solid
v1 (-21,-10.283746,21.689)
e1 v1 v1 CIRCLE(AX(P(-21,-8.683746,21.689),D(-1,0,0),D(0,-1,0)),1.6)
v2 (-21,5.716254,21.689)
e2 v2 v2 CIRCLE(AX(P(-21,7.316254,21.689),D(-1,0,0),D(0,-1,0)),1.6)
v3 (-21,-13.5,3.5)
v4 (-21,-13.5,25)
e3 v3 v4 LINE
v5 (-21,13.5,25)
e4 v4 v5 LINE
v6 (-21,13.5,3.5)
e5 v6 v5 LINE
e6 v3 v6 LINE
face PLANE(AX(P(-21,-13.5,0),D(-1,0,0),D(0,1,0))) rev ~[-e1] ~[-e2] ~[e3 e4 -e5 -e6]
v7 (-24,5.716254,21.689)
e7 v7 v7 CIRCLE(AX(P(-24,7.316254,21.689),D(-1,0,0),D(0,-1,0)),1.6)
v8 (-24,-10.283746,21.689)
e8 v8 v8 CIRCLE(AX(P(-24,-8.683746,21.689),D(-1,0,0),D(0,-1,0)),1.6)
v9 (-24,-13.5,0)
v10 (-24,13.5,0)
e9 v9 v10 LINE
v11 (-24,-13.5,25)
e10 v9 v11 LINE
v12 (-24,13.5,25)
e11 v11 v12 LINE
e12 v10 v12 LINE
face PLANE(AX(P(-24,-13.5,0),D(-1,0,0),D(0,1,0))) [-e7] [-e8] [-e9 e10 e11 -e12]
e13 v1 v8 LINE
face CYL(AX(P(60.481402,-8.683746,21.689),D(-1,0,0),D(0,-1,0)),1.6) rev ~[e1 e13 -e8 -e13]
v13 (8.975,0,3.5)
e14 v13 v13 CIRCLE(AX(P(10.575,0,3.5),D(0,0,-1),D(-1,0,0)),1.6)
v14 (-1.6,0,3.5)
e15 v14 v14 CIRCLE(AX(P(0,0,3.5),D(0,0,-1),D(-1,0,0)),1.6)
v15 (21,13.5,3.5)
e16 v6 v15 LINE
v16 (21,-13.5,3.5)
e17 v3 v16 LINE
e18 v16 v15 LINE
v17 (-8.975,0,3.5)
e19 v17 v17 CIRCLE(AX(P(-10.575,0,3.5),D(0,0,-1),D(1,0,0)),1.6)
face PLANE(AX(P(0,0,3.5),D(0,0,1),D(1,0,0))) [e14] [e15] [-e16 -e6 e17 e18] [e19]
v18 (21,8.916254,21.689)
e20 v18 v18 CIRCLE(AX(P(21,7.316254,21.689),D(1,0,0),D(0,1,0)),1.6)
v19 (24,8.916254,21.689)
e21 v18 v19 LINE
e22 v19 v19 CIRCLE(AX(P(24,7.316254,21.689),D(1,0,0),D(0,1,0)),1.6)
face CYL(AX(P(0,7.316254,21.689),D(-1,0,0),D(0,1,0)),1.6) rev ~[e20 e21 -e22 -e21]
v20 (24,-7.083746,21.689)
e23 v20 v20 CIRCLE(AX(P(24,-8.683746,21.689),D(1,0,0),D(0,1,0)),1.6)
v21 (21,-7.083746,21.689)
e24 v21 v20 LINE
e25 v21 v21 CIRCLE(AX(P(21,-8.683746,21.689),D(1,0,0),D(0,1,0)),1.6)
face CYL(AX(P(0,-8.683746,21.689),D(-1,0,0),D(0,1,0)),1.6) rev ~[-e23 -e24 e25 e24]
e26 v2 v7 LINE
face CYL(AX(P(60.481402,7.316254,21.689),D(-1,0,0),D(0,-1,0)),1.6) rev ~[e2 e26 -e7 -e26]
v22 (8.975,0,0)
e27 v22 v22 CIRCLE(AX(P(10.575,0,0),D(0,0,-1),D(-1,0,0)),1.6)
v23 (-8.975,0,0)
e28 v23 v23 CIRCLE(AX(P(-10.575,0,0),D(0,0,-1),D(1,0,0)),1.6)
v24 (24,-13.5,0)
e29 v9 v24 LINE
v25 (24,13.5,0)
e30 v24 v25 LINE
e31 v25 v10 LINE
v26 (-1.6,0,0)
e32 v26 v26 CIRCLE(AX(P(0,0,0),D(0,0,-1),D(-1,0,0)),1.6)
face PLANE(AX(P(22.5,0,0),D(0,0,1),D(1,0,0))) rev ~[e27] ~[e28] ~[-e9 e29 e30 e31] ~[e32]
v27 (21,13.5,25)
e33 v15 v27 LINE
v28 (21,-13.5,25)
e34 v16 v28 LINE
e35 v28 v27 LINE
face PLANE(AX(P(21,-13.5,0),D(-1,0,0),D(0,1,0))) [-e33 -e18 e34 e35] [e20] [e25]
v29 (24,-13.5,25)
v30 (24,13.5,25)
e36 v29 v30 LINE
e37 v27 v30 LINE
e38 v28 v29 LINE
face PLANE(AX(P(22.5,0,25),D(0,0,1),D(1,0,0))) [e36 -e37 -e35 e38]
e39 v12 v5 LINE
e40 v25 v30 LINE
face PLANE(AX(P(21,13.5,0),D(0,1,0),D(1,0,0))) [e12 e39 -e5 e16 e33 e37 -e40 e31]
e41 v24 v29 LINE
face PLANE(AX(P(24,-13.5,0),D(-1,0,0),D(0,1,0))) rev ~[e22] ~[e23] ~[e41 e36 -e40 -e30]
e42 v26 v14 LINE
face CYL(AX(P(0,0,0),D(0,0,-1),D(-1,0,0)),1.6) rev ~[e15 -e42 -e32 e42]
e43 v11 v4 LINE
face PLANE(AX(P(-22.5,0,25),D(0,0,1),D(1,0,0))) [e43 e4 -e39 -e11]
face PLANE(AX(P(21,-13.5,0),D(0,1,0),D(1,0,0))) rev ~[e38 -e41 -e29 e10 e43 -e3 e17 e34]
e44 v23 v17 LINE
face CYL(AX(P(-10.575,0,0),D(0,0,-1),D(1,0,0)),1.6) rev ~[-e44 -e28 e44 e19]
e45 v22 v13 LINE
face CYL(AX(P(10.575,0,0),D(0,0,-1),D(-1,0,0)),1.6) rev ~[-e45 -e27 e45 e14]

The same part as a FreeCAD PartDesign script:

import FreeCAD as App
import Part
import Sketcher

V = App.Vector


def add_polygon(sketch, points):
    """Adds a closed chain of lines whose ends are joined by coincident constraints."""
    first, n = sketch.GeometryCount, len(points)
    for a, b in zip(points, points[1:] + points[:1]):
        sketch.addGeometry(Part.LineSegment(App.Vector(*a, 0), App.Vector(*b, 0)), False)
    for i in range(n):
        sketch.addConstraint(Sketcher.Constraint("Coincident", first + i, 2, first + (i + 1) % n, 1))

doc = App.newDocument("Part")
body = doc.addObject("PartDesign::Body", "Body")

sketch1 = body.newObject("Sketcher::SketchObject", "Sketch")
sketch1.AttachmentSupport = (doc.getObject("XY_Plane"), [""])
sketch1.MapMode = "FlatFace"
add_polygon(sketch1, [(-21, 13.5), (-21, -13.5), (21, -13.5), (21, 13.5)])
sketch1.addGeometry(Part.Circle(V(10.6, 0, 0), V(0, 0, 1), 1.6), False)
sketch1.addGeometry(Part.Circle(V(-10.6, 0, 0), V(0, 0, 1), 1.6), False)
sketch1.addGeometry(Part.Circle(V(0, 0, 0), V(0, 0, 1), 1.6), False)
sketch1.addConstraint([
    Sketcher.Constraint("Vertical", 0),
    Sketcher.Constraint("Horizontal", 1),
    Sketcher.Constraint("Vertical", 2),
    Sketcher.Constraint("Horizontal", 3),
    Sketcher.Constraint("Coincident", 6, 3, -1, 1),
    Sketcher.Constraint("Equal", 4, 5),
    Sketcher.Constraint("Equal", 5, 6),
    Sketcher.Constraint("Symmetric", 4, 3, 5, 3, -1, 1),
    Sketcher.Constraint("Symmetric", 0, 2, 2, 2, -1, 1),
    Sketcher.Constraint("PointOnObject", 4, 3, -1),
    Sketcher.Constraint("Diameter", 4, 3.2),
    Sketcher.Constraint("DistanceX", 1, 1, 1, 2, 42.0),
    Sketcher.Constraint("DistanceY", 0, 2, 0, 1, 27.0),
    Sketcher.Constraint("DistanceX", 5, 3, 4, 3, 21.15),
])
pad1 = body.newObject("PartDesign::Pad", "Pad")
pad1.Profile = sketch1
pad1.Length = 3.5

sketch2 = body.newObject("Sketcher::SketchObject", "Sketch001")
sketch2.AttachmentSupport = (doc.getObject("XY_Plane"), [""])
sketch2.MapMode = "FlatFace"
add_polygon(sketch2, [(-24, 13.5), (-24, -13.5), (-21, -13.5), (-21, 13.5)])
sketch2.addConstraint([
    Sketcher.Constraint("Vertical", 0),
    Sketcher.Constraint("Horizontal", 1),
    Sketcher.Constraint("Vertical", 2),
    Sketcher.Constraint("Horizontal", 3),
    Sketcher.Constraint("DistanceX", 1, 1, 1, 2, 3.0),
    Sketcher.Constraint("DistanceY", 0, 2, 0, 1, 27.0),
    Sketcher.Constraint("DistanceX", 0, 2, -1, 1, 24.0),
    Sketcher.Constraint("DistanceY", 0, 2, -1, 1, 13.5),
])
pad2 = body.newObject("PartDesign::Pad", "Pad001")
pad2.Profile = sketch2
pad2.Length = 25

sketch3 = body.newObject("Sketcher::SketchObject", "Sketch002")
sketch3.AttachmentSupport = (doc.getObject("XY_Plane"), [""])
sketch3.MapMode = "FlatFace"
add_polygon(sketch3, [(21, 13.5), (21, -13.5), (24, -13.5), (24, 13.5)])
sketch3.addConstraint([
    Sketcher.Constraint("Vertical", 0),
    Sketcher.Constraint("Horizontal", 1),
    Sketcher.Constraint("Vertical", 2),
    Sketcher.Constraint("Horizontal", 3),
    Sketcher.Constraint("DistanceX", 1, 1, 1, 2, 3.0),
    Sketcher.Constraint("DistanceY", 0, 2, 0, 1, 27.0),
    Sketcher.Constraint("DistanceX", -1, 1, 0, 2, 21.0),
    Sketcher.Constraint("DistanceY", 0, 2, -1, 1, 13.5),
])
pad3 = body.newObject("PartDesign::Pad", "Pad002")
pad3.Profile = sketch3
pad3.Length = 25

sketch4 = body.newObject("Sketcher::SketchObject", "Sketch003")
sketch4.AttachmentSupport = (doc.getObject("YZ_Plane"), [""])
sketch4.MapMode = "FlatFace"
sketch4.addGeometry(Part.Circle(V(-8.7, 21.7, 0), V(0, 0, 1), 1.6), False)
sketch4.addConstraint([
    Sketcher.Constraint("Diameter", 0, 3.2),
    Sketcher.Constraint("DistanceY", -1, 1, 0, 3, 21.689),
    Sketcher.Constraint("DistanceX", 0, 3, -1, 1, 8.683746),
])
pocket1 = body.newObject("PartDesign::Pocket", "Pocket")
pocket1.Profile = sketch4
pocket1.Type = "ThroughAll"
pocket1.Reversed = True

sketch5 = body.newObject("Sketcher::SketchObject", "Sketch004")
sketch5.AttachmentSupport = (doc.getObject("YZ_Plane"), [""])
sketch5.MapMode = "FlatFace"
sketch5.addGeometry(Part.Circle(V(7.3, 21.7, 0), V(0, 0, 1), 1.6), False)
sketch5.addConstraint([
    Sketcher.Constraint("Diameter", 0, 3.2),
    Sketcher.Constraint("DistanceY", -1, 1, 0, 3, 21.689),
    Sketcher.Constraint("DistanceX", -1, 1, 0, 3, 7.316254),
])
pocket2 = body.newObject("PartDesign::Pocket", "Pocket001")
pocket2.Profile = sketch5
pocket2.Type = "ThroughAll"
pocket2.Reversed = True

sketch6 = body.newObject("Sketcher::SketchObject", "Sketch005")
sketch6.AttachmentSupport = (doc.getObject("YZ_Plane"), [""])
sketch6.MapMode = "FlatFace"
sketch6.addGeometry([
    Part.Circle(V(-8.7, 21.7, 0), V(0, 0, 1), 1.6),
    Part.Circle(V(7.3, 21.7, 0), V(0, 0, 1), 1.6),
], False)
sketch6.addConstraint([
    Sketcher.Constraint("Equal", 0, 1),
    Sketcher.Constraint("Horizontal", 0, 3, 1, 3),
    Sketcher.Constraint("Diameter", 0, 3.2),
    Sketcher.Constraint("DistanceX", 0, 3, 1, 3, 16.0),
    Sketcher.Constraint("DistanceY", -1, 1, 0, 3, 21.689),
    Sketcher.Constraint("DistanceX", 0, 3, -1, 1, 8.683746),
])
doc.recompute()
hole = body.newObject("PartDesign::Hole", "Hole")
hole.Profile = sketch6
hole.ThreadType = "None"
hole.Diameter = 3.2
hole.DepthType = "ThroughAll"

doc.recompute()
